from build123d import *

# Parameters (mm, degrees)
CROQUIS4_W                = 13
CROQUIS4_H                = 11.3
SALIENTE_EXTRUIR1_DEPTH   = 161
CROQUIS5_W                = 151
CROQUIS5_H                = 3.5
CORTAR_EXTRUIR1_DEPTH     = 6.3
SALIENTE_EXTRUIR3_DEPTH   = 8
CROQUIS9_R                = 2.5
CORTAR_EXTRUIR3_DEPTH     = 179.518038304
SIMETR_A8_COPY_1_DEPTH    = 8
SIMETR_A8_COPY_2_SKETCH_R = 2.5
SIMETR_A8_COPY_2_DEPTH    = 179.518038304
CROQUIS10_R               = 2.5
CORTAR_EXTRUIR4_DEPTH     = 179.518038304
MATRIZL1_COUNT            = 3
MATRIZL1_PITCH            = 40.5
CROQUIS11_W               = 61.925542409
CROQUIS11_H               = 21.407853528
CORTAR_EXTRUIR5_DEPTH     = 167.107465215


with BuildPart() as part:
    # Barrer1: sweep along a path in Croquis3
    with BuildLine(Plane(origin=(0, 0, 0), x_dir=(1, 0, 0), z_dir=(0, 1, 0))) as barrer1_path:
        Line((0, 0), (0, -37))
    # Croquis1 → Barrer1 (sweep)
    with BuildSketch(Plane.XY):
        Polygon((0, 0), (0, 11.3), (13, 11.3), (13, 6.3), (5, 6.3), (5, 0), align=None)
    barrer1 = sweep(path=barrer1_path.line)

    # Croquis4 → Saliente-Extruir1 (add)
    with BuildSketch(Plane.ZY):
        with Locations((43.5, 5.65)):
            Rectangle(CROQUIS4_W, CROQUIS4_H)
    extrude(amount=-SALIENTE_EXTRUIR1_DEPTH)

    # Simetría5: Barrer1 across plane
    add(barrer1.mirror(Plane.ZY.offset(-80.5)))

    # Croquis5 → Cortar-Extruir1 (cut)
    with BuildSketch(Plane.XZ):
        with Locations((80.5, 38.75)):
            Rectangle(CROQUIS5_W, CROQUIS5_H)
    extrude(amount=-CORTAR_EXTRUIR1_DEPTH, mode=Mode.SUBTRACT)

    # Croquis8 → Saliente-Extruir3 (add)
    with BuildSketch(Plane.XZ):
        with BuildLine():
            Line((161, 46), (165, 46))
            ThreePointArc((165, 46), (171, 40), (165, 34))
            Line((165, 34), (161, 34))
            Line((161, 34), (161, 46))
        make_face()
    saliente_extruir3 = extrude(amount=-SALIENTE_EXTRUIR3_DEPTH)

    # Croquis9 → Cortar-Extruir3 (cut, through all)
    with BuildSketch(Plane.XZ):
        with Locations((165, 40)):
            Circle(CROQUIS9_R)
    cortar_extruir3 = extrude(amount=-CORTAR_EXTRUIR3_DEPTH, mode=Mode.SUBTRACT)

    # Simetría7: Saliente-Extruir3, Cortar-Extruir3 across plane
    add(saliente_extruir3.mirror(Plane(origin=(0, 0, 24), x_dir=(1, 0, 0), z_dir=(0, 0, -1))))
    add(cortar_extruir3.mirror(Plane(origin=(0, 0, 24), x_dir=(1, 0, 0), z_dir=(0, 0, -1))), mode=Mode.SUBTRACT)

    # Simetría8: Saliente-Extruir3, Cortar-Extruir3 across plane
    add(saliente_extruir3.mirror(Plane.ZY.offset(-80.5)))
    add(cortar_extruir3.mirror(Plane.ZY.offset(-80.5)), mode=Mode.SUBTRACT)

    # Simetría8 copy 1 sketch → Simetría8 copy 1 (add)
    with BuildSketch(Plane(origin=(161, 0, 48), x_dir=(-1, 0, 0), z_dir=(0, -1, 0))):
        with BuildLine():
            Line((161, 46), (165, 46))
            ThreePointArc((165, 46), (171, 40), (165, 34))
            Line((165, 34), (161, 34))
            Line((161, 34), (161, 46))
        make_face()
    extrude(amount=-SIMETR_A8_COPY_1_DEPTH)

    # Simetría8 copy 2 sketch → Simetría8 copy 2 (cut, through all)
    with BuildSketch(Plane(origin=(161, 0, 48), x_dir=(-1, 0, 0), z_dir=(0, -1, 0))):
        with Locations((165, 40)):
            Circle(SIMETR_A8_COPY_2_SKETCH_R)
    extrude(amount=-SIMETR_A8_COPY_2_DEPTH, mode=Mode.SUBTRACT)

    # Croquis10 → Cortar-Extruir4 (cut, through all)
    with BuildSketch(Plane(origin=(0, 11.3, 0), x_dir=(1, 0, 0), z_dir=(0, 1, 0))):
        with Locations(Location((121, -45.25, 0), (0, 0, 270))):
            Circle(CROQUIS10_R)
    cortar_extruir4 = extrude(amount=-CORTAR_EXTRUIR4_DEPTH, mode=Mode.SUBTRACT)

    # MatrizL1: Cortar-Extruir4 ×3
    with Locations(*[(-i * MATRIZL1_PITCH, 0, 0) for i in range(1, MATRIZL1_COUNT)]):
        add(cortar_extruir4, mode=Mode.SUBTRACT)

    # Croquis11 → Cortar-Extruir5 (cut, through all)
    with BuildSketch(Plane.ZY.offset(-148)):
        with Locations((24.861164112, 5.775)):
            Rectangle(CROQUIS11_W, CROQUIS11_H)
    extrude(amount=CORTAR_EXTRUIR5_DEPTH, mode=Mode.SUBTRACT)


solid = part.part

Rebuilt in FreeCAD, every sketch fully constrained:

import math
import FreeCAD as App
import Part
import Sketcher

V = App.Vector
Q = App.Units.Quantity


def add_polygon(sketch, points):
    """Adds a closed chain of lines whose ends are joined by coincident constraints."""
    first, n = sketch.GeometryCount, len(points)
    for a, b in zip(points, points[1:] + points[:1]):
        sketch.addGeometry(Part.LineSegment(App.Vector(*a, 0), App.Vector(*b, 0)), False)
    for i in range(n):
        sketch.addConstraint(Sketcher.Constraint("Coincident", first + i, 2, first + (i + 1) % n, 1))

doc = App.newDocument("Part")
body = doc.addObject("PartDesign::Body", "Body")

# Sketch on XY plane
sketch1 = body.newObject("Sketcher::SketchObject", "Sketch")
sketch1.AttachmentSupport = (doc.getObject("XY_Plane"), [""])
sketch1.MapMode = "FlatFace"
add_polygon(sketch1, [(0, 11), (0, 0), (5, 0), (5, 6), (13, 6), (13, 11)])  # lines 0-5
sketch1.addConstraint([
    Sketcher.Constraint("Vertical", 0),
    Sketcher.Constraint("Horizontal", 1),
    Sketcher.Constraint("Vertical", 2),
    Sketcher.Constraint("Horizontal", 3),
    Sketcher.Constraint("Vertical", 4),
    Sketcher.Constraint("Horizontal", 5),
    Sketcher.Constraint("Coincident", 0, 2, -1, 1),
    Sketcher.Constraint("Equal", 1, 4),
    Sketcher.Constraint("DistanceX", 1, 1, 1, 2, Q("5 mm")),
    Sketcher.Constraint("DistanceX", 3, 1, 3, 2, Q("8 mm")),
    Sketcher.Constraint("DistanceY", 0, 2, 0, 1, Q("11.3 mm")),
])

# Sketch on XZ plane
sketch2 = body.newObject("Sketcher::SketchObject", "Sketch001")
sketch2.AttachmentSupport = (doc.getObject("XZ_Plane"), [""])
sketch2.MapMode = "FlatFace"
sketch2.addGeometry(Part.LineSegment(V(0, 0, 0), V(0, 37, 0)), False)
sketch2.addConstraint([
    Sketcher.Constraint("Vertical", 0),
    Sketcher.Constraint("Coincident", 0, 1, -1, 1),
    Sketcher.Constraint("DistanceY", 0, 1, 0, 2, Q("37 mm")),
])
doc.recompute()

additivepipe = body.newObject("PartDesign::AdditivePipe", "AdditivePipe")
additivepipe.Profile = sketch1
additivepipe.Spine = (sketch2, ["Edge1"])

# Sketch on YZ plane
sketch3 = body.newObject("Sketcher::SketchObject", "Sketch002")
sketch3.AttachmentSupport = (doc.getObject("YZ_Plane"), [""])
sketch3.MapMode = "FlatFace"
add_polygon(sketch3, [(11, 37), (0, 37), (0, 50), (11, 50)])  # lines 0-3
sketch3.addConstraint([
    Sketcher.Constraint("Horizontal", 0),
    Sketcher.Constraint("Vertical", 1),
    Sketcher.Constraint("Horizontal", 2),
    Sketcher.Constraint("Vertical", 3),
    Sketcher.Constraint("PointOnObject", 0, 2, -2),
    Sketcher.Constraint("DistanceY", 1, 1, 1, 2, Q("13 mm")),
    Sketcher.Constraint("DistanceX", 0, 2, 0, 1, Q("11.3 mm")),
    Sketcher.Constraint("DistanceY", -1, 1, 0, 2, Q("37 mm")),
])
pad1 = body.newObject("PartDesign::Pad", "Pad")
pad1.Profile = sketch3
pad1.Length = 161
doc.recompute()

datumplane = body.newObject("PartDesign::Plane", "DatumPlane")
datumplane.AttachmentSupport = (doc.getObject("YZ_Plane"), [""])
datumplane.MapMode = "FlatFace"
datumplane.AttachmentOffset = App.Placement(V(0, 0, 80.5), App.Rotation())
mirrored = body.newObject("PartDesign::Mirrored", "Mirrored")
mirrored.Originals = [additivepipe]
mirrored.MirrorPlane = (datumplane, [""])
body.Tip = mirrored

# Sketch on XZ plane
sketch4 = body.newObject("Sketcher::SketchObject", "Sketch003")
sketch4.AttachmentSupport = (doc.getObject("XZ_Plane"), [""])
sketch4.MapMode = "FlatFace"
add_polygon(sketch4, [(5, 40.5), (5, 37), (156, 37), (156, 40.5)])  # lines 0-3
sketch4.addConstraint([
    Sketcher.Constraint("Vertical", 0),
    Sketcher.Constraint("Horizontal", 1),
    Sketcher.Constraint("Vertical", 2),
    Sketcher.Constraint("Horizontal", 3),
    Sketcher.Constraint("DistanceX", 1, 1, 1, 2, Q("151 mm")),
    Sketcher.Constraint("DistanceY", 0, 2, 0, 1, Q("3.5 mm")),
    Sketcher.Constraint("DistanceX", -1, 1, 0, 2, Q("5 mm")),
    Sketcher.Constraint("DistanceY", -1, 1, 0, 2, Q("37 mm")),
])
pocket1 = body.newObject("PartDesign::Pocket", "Pocket")
pocket1.Profile = sketch4
pocket1.Length = 6.3

# Sketch on XZ plane
sketch5 = body.newObject("Sketcher::SketchObject", "Sketch004")
sketch5.AttachmentSupport = (doc.getObject("XZ_Plane"), [""])
sketch5.MapMode = "FlatFace"
sketch5.addGeometry([
    Part.LineSegment(V(165, 46, 0), V(161, 46, 0)),
    Part.LineSegment(V(161, 46, 0), V(161, 34, 0)),
    Part.LineSegment(V(161, 34, 0), V(165, 34, 0)),
    Part.ArcOfCircle(Part.Circle(V(165, 40, 0), V(0, 0, 1), 6), math.radians(-90), math.radians(90)),
], False)
sketch5.addConstraint([
    Sketcher.Constraint("Coincident", 0, 2, 1, 1),
    Sketcher.Constraint("Coincident", 1, 2, 2, 1),
    Sketcher.Constraint("Tangent", 2, 2, 3, 1),
    Sketcher.Constraint("Tangent", 3, 2, 0, 1),
    Sketcher.Constraint("Horizontal", 0),
    Sketcher.Constraint("Vertical", 1),
    Sketcher.Constraint("Horizontal", 2),
    Sketcher.Constraint("Radius", 3, Q("6 mm")),
    Sketcher.Constraint("DistanceX", 0, 2, 0, 1, Q("4 mm")),
    Sketcher.Constraint("DistanceX", -1, 1, 3, 3, Q("165 mm")),
    Sketcher.Constraint("DistanceY", -1, 1, 3, 3, Q("40 mm")),
])
pad2 = body.newObject("PartDesign::Pad", "Pad001")
pad2.Profile = sketch5
pad2.Length = 8
pad2.Reversed = True

# Sketch on XZ plane
sketch6 = body.newObject("Sketcher::SketchObject", "Sketch005")
sketch6.AttachmentSupport = (doc.getObject("XZ_Plane"), [""])
sketch6.MapMode = "FlatFace"
sketch6.addGeometry(Part.Circle(V(165, 40, 0), V(0, 0, 1), 2.5), False)
sketch6.addConstraint([
    Sketcher.Constraint("Diameter", 0, Q("5 mm")),
    Sketcher.Constraint("DistanceX", -1, 1, 0, 3, Q("165 mm")),
    Sketcher.Constraint("DistanceY", -1, 1, 0, 3, Q("40 mm")),
])
pocket2 = body.newObject("PartDesign::Pocket", "Pocket001")
pocket2.Profile = sketch6
pocket2.Type = "ThroughAll"
doc.recompute()

datumplane2 = body.newObject("PartDesign::Plane", "DatumPlane001")
datumplane2.AttachmentSupport = (doc.getObject("XY_Plane"), [""])
datumplane2.MapMode = "FlatFace"
datumplane2.AttachmentOffset = App.Placement(V(0, 0, 24), App.Rotation())
mirrored2 = body.newObject("PartDesign::Mirrored", "Mirrored001")
mirrored2.Originals = [pad2, pocket2]
mirrored2.MirrorPlane = (datumplane2, [""])
body.Tip = mirrored2
doc.recompute()

datumplane3 = body.newObject("PartDesign::Plane", "DatumPlane002")
datumplane3.AttachmentSupport = (doc.getObject("YZ_Plane"), [""])
datumplane3.MapMode = "FlatFace"
datumplane3.AttachmentOffset = App.Placement(V(0, 0, 80.5), App.Rotation())
mirrored3 = body.newObject("PartDesign::Mirrored", "Mirrored002")
mirrored3.Originals = [pad2, pocket2]
mirrored3.MirrorPlane = (datumplane3, [""])
body.Tip = mirrored3

# Sketch on XZ plane
sketch7 = body.newObject("Sketcher::SketchObject", "Sketch006")
sketch7.AttachmentSupport = (doc.getObject("XZ_Plane"), [""])
sketch7.MapMode = "FlatFace"
sketch7.addGeometry([
    Part.LineSegment(V(-4, 2, 0), V(0, 2, 0)),
    Part.LineSegment(V(0, 2, 0), V(0, 14, 0)),
    Part.LineSegment(V(0, 14, 0), V(-4, 14, 0)),
    Part.ArcOfCircle(Part.Circle(V(-4, 8, 0), V(0, 0, 1), 6), math.radians(90), math.radians(270)),
], False)
sketch7.addConstraint([
    Sketcher.Constraint("Coincident", 0, 2, 1, 1),
    Sketcher.Constraint("Coincident", 1, 2, 2, 1),
    Sketcher.Constraint("Tangent", 2, 2, 3, 1),
    Sketcher.Constraint("Tangent", 3, 2, 0, 1),
    Sketcher.Constraint("Horizontal", 0),
    Sketcher.Constraint("Vertical", 1),
    Sketcher.Constraint("Horizontal", 2),
    Sketcher.Constraint("PointOnObject", 0, 2, -2),
    Sketcher.Constraint("Radius", 3, Q("6 mm")),
    Sketcher.Constraint("DistanceX", 0, 1, 0, 2, Q("4 mm")),
    Sketcher.Constraint("DistanceY", -1, 1, 3, 3, Q("8 mm")),
])
pad3 = body.newObject("PartDesign::Pad", "Pad002")
pad3.Profile = sketch7
pad3.Length = 8
pad3.Reversed = True

# Sketch on XZ plane
sketch8 = body.newObject("Sketcher::SketchObject", "Sketch007")
sketch8.AttachmentSupport = (doc.getObject("XZ_Plane"), [""])
sketch8.MapMode = "FlatFace"
sketch8.addGeometry(Part.Circle(V(-4, 8, 0), V(0, 0, 1), 2.5), False)
sketch8.addConstraint([
    Sketcher.Constraint("Diameter", 0, Q("5 mm")),
    Sketcher.Constraint("DistanceX", 0, 3, -1, 1, Q("4 mm")),
    Sketcher.Constraint("DistanceY", -1, 1, 0, 3, Q("8 mm")),
])
pocket3 = body.newObject("PartDesign::Pocket", "Pocket002")
pocket3.Profile = sketch8
pocket3.Type = "ThroughAll"

# Sketch on XZ plane
sketch9 = body.newObject("Sketcher::SketchObject", "Sketch008")
sketch9.AttachmentSupport = (doc.getObject("XZ_Plane"), [""])
sketch9.MapMode = "FlatFace"
sketch9.AttachmentOffset = App.Placement(V(0, 0, -11.3), App.Rotation())
sketch9.addGeometry(Part.Circle(V(121, 45.2, 0), V(0, 0, 1), 2.5), False)
sketch9.addConstraint([
    Sketcher.Constraint("Diameter", 0, Q("5 mm")),
    Sketcher.Constraint("DistanceX", -1, 1, 0, 3, Q("121 mm")),
    Sketcher.Constraint("DistanceY", -1, 1, 0, 3, Q("45.25 mm")),
])
pocket4 = body.newObject("PartDesign::Pocket", "Pocket003")
pocket4.Profile = sketch9
pocket4.Type = "ThroughAll"
pocket4.Reversed = True
doc.recompute()

linearpattern = body.newObject("PartDesign::LinearPattern", "LinearPattern")
linearpattern.Originals = [pocket4]
linearpattern.Direction = (doc.getObject("X_Axis"), [""])
linearpattern.Mode = "offset"
linearpattern.Offset = 40.5
linearpattern.Occurrences = 3
linearpattern.Reversed = True
body.Tip = linearpattern

# Sketch on YZ plane
sketch10 = body.newObject("Sketcher::SketchObject", "Sketch009")
sketch10.AttachmentSupport = (doc.getObject("YZ_Plane"), [""])
sketch10.MapMode = "FlatFace"
sketch10.AttachmentOffset = App.Placement(V(0, 0, 148), App.Rotation())
add_polygon(sketch10, [(16, -6), (-5, -6), (-5, 56), (16, 56)])  # lines 0-3
sketch10.addConstraint([
    Sketcher.Constraint("Horizontal", 0),
    Sketcher.Constraint("Vertical", 1),
    Sketcher.Constraint("Horizontal", 2),
    Sketcher.Constraint("Vertical", 3),
    Sketcher.Constraint("DistanceX", 0, 2, 0, 1, Q("21.407854 mm")),
    Sketcher.Constraint("DistanceY", 1, 1, 1, 2, Q("61.925542 mm")),
    Sketcher.Constraint("DistanceX", 0, 2, -1, 1, Q("4.928927 mm")),
    Sketcher.Constraint("DistanceY", 0, 2, -1, 1, Q("6.101607 mm")),
])
pocket5 = body.newObject("PartDesign::Pocket", "Pocket004")
pocket5.Profile = sketch10
pocket5.Type = "ThroughAll"

doc.recompute()
